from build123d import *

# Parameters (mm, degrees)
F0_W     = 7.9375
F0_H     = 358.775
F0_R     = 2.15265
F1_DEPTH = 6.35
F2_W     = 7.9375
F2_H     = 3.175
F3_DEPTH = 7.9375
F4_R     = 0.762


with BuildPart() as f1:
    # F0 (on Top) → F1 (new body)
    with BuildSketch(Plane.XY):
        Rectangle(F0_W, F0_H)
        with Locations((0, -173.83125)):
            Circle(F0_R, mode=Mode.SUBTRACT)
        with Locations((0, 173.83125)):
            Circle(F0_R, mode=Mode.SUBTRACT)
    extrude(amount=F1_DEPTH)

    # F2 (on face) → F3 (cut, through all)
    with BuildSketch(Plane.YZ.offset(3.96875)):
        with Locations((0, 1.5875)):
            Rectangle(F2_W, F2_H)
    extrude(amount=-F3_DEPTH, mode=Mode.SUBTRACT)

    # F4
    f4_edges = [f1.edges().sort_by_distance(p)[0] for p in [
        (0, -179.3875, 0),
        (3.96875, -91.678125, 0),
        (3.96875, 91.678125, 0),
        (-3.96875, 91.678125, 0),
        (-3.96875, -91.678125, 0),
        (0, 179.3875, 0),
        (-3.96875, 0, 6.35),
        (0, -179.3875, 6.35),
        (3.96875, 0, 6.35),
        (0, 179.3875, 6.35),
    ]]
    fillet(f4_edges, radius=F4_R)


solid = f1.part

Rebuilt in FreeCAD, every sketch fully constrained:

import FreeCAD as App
import Part
import Sketcher
from FreeCAD import Vector
Q = App.Units.Quantity


def edges_at(feature, points):
    """Names of the edges that pass closest to the given points."""
    edges = feature.Shape.Edges
    near = lambda p: min(range(len(edges)), key=lambda i: edges[i].distToShape(Part.Vertex(*p))[0])
    return sorted({f"Edge{near(p) + 1}" for p in points})

doc = App.newDocument("Part")
body = doc.addObject("PartDesign::Body", "Body")

# Sketch on XY plane
sketch1 = body.newObject("Sketcher::SketchObject", "Sketch")
sketch1.AttachmentSupport = (doc.getObject("XY_Plane"), [""])
sketch1.MapMode = "FlatFace"
sketch1.addGeometry(Part.LineSegment(Vector(-4, 179.4, 0), Vector(-4, -179.4, 0)), False)
sketch1.addGeometry(Part.LineSegment(Vector(-4, -179.4, 0), Vector(4, -179.4, 0)), False)
sketch1.addGeometry(Part.LineSegment(Vector(4, -179.4, 0), Vector(4, 179.4, 0)), False)
sketch1.addGeometry(Part.LineSegment(Vector(4, 179.4, 0), Vector(-4, 179.4, 0)), False)
sketch1.addGeometry(Part.Circle(Vector(0, -173.8, 0), Vector(0, 0, 1), 2.2), False)
sketch1.addGeometry(Part.Circle(Vector(0, 173.8, 0), Vector(0, 0, 1), 2.2), False)
sketch1.addConstraint(Sketcher.Constraint("Coincident", 0, 2, 1, 1))
sketch1.addConstraint(Sketcher.Constraint("Coincident", 1, 2, 2, 1))
sketch1.addConstraint(Sketcher.Constraint("Coincident", 2, 2, 3, 1))
sketch1.addConstraint(Sketcher.Constraint("Coincident", 3, 2, 0, 1))
sketch1.addConstraint(Sketcher.Constraint("Vertical", 0))
sketch1.addConstraint(Sketcher.Constraint("Horizontal", 1))
sketch1.addConstraint(Sketcher.Constraint("Vertical", 2))
sketch1.addConstraint(Sketcher.Constraint("Horizontal", 3))
sketch1.addConstraint(Sketcher.Constraint("Equal", 4, 5))
sketch1.addConstraint(Sketcher.Constraint("Symmetric", 4, 3, 5, 3, -1, 1))
sketch1.addConstraint(Sketcher.Constraint("Symmetric", 0, 2, 2, 2, -1, 1))
sketch1.addConstraint(Sketcher.Constraint("PointOnObject", 4, 3, -2))
sketch1.addConstraint(Sketcher.Constraint("Diameter", 4, Q("0.1695 in")))
sketch1.addConstraint(Sketcher.Constraint("DistanceX", 1, 1, 1, 2, Q("0.3125 in")))
sketch1.addConstraint(Sketcher.Constraint("DistanceY", 0, 2, 0, 1, Q("14.125 in")))
sketch1.addConstraint(Sketcher.Constraint("DistanceY", 4, 3, -1, 1, Q("6.84375 in")))
pad1 = body.newObject("PartDesign::Pad", "Pad")
pad1.Profile = sketch1
pad1.Length = Q("0.25 in")

# Sketch on YZ plane
sketch2 = body.newObject("Sketcher::SketchObject", "Sketch001")
sketch2.AttachmentSupport = (doc.getObject("YZ_Plane"), [""])
sketch2.MapMode = "FlatFace"
sketch2.AttachmentOffset = App.Placement(Vector(0, 0, 0.15625 * 25.4), App.Rotation())
sketch2.addGeometry(Part.LineSegment(Vector(-4, 3.2, 0), Vector(-4, 0, 0)), False)
sketch2.addGeometry(Part.LineSegment(Vector(-4, 0, 0), Vector(4, 0, 0)), False)
sketch2.addGeometry(Part.LineSegment(Vector(4, 0, 0), Vector(4, 3.2, 0)), False)
sketch2.addGeometry(Part.LineSegment(Vector(4, 3.2, 0), Vector(-4, 3.2, 0)), False)
sketch2.addConstraint(Sketcher.Constraint("Coincident", 0, 2, 1, 1))
sketch2.addConstraint(Sketcher.Constraint("Coincident", 1, 2, 2, 1))
sketch2.addConstraint(Sketcher.Constraint("Coincident", 2, 2, 3, 1))
sketch2.addConstraint(Sketcher.Constraint("Coincident", 3, 2, 0, 1))
sketch2.addConstraint(Sketcher.Constraint("Vertical", 0))
sketch2.addConstraint(Sketcher.Constraint("Horizontal", 1))
sketch2.addConstraint(Sketcher.Constraint("Vertical", 2))
sketch2.addConstraint(Sketcher.Constraint("Horizontal", 3))
sketch2.addConstraint(Sketcher.Constraint("Symmetric", 0, 2, 1, 2, -1, 1))
sketch2.addConstraint(Sketcher.Constraint("DistanceX", 1, 1, 1, 2, Q("0.3125 in")))
sketch2.addConstraint(Sketcher.Constraint("DistanceY", 0, 2, 0, 1, Q("0.125 in")))
pocket1 = body.newObject("PartDesign::Pocket", "Pocket")
pocket1.Profile = sketch2
pocket1.Type = "ThroughAll"
doc.recompute()

fillet = body.newObject("PartDesign::Fillet", "Fillet")
fillet.Base = (pocket1, edges_at(pocket1, [
    (0, -179.387, 0),
    (3.969, -91.678, 0),
    (3.969, 91.678, 0),
    (-3.969, 91.678, 0),
    (-3.969, -91.678, 0),
    (0, 179.387, 0),
    (-3.969, 0, 6.35),
    (0, -179.387, 6.35),
    (3.969, 0, 6.35),
    (0, 179.387, 6.35),
]))
fillet.Radius = Q("0.03 in")

doc.recompute()
